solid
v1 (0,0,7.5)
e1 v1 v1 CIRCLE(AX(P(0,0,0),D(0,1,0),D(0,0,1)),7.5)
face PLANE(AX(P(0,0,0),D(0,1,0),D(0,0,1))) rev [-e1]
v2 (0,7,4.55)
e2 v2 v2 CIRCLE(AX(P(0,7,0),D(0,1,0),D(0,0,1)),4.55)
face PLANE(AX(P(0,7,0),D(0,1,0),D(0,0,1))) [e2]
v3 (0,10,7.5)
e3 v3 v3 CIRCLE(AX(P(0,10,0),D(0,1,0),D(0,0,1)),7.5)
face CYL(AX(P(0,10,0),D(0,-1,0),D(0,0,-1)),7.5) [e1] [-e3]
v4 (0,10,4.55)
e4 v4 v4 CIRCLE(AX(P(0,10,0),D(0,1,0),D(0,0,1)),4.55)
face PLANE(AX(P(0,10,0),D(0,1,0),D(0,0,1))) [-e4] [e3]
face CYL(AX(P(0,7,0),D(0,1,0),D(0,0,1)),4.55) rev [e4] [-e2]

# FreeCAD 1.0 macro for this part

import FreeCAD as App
import Part
import Sketcher
from FreeCAD import Vector
Q = App.Units.Quantity

doc = App.newDocument("Part")
body = doc.addObject("PartDesign::Body", "Body")

# Sketch on XZ plane
sketch1 = doc.addObject("Sketcher::SketchObject", "Sketch")
body.addObject(sketch1)
sketch1.AttachmentSupport = (doc.XZ_Plane, [""])
sketch1.MapMode = "FlatFace"
sketch1.addGeometry(Part.Circle(Vector(0, 0, 0), Vector(0, 0, 1), 8), False)
sketch1.addConstraint([
    Sketcher.Constraint("Coincident", 0, 3, -1, 1),
    Sketcher.Constraint("Diameter", 0, Q("15 mm")),
])
pad1 = doc.addObject("PartDesign::Pad", "Pad")
body.addObject(pad1)
pad1.Profile = sketch1
pad1.Length = 10
pad1.Reversed = True

# Sketch on XZ plane
sketch2 = doc.addObject("Sketcher::SketchObject", "Sketch001")
body.addObject(sketch2)
sketch2.AttachmentSupport = (doc.XZ_Plane, [""])
sketch2.MapMode = "FlatFace"
sketch2.AttachmentOffset = App.Placement(Vector(0, 0, -10), App.Rotation())
sketch2.addGeometry(Part.Circle(Vector(0, 0, 0), Vector(0, 0, 1), 4.5), False)
sketch2.addConstraint([
    Sketcher.Constraint("Coincident", 0, 3, -1, 1),
    Sketcher.Constraint("Diameter", 0, Q("9.1 mm")),
])
pocket1 = doc.addObject("PartDesign::Pocket", "Pocket")
body.addObject(pocket1)
pocket1.Profile = sketch2
pocket1.Length = 3
pocket1.Reversed = True

doc.recompute()
